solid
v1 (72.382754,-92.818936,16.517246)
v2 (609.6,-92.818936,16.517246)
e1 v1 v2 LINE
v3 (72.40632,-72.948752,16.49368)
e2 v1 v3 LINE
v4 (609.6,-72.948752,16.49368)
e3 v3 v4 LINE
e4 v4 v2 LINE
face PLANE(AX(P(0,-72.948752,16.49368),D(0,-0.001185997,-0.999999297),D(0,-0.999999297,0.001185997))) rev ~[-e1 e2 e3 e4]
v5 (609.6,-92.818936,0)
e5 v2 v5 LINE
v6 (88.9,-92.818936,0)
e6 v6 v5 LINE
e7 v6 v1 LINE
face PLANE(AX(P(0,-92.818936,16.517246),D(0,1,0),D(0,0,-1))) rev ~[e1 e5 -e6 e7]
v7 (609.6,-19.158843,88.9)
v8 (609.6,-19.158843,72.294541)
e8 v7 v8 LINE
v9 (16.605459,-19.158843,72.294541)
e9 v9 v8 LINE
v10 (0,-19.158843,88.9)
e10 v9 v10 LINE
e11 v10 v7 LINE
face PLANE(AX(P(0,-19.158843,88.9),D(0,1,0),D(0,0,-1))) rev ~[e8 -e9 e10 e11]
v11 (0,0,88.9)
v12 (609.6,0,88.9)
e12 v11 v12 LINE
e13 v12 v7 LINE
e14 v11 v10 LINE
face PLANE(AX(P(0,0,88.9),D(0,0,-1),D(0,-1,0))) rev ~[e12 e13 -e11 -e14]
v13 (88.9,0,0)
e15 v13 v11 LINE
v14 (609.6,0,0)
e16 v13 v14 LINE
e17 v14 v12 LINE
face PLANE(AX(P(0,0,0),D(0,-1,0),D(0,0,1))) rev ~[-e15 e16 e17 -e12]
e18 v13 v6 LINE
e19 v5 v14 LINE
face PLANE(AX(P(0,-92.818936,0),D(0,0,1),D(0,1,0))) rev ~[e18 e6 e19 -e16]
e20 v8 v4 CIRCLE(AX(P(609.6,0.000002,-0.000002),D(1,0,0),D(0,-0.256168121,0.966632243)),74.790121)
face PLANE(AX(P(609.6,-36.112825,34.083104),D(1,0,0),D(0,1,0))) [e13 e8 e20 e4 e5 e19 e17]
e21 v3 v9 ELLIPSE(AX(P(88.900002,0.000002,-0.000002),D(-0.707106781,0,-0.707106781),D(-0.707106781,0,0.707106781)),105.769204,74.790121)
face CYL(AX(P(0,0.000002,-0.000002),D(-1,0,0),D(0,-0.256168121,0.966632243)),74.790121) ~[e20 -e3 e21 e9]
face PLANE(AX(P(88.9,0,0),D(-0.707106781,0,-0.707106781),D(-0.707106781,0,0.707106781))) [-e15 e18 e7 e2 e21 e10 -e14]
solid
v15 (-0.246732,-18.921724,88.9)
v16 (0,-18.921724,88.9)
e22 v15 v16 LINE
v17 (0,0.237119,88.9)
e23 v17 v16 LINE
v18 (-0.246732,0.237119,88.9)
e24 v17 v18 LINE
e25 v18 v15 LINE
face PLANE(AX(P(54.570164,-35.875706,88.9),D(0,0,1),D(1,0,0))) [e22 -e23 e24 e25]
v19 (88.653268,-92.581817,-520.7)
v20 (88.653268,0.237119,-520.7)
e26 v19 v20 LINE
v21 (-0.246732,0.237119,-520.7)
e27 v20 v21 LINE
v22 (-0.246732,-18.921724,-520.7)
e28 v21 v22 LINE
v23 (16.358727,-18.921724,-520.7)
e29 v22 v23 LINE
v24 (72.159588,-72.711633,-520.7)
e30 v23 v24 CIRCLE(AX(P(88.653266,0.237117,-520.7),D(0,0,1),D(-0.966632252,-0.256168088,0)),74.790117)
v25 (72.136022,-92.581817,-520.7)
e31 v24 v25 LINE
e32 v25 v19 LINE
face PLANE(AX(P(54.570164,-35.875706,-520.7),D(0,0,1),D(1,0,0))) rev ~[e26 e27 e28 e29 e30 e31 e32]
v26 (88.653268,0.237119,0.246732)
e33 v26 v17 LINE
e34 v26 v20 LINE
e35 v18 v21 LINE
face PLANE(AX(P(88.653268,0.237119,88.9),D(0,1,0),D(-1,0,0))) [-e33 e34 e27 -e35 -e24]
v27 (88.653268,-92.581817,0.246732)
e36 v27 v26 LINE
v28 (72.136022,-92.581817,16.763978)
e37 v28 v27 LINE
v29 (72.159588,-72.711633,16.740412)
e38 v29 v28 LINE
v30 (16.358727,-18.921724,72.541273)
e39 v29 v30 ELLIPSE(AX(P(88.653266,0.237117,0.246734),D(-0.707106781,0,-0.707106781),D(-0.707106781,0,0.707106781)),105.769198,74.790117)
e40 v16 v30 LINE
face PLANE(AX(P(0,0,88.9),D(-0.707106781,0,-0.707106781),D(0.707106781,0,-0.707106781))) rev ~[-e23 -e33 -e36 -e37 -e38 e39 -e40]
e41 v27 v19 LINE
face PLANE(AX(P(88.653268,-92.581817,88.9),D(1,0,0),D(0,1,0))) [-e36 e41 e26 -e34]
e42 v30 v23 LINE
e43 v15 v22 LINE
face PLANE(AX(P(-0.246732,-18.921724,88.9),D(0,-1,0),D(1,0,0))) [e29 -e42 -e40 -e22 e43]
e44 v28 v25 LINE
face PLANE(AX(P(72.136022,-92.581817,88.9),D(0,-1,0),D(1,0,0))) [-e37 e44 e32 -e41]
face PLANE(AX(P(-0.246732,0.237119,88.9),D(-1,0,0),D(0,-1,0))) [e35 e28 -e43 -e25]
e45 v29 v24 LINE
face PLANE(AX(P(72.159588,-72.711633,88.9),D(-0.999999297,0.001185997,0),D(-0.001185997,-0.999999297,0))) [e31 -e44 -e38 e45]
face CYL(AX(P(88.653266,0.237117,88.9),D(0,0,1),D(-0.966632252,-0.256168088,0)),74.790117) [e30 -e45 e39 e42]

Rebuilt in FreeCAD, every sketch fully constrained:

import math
import FreeCAD as App
import Part
import Sketcher
Q = App.Units.Quantity

doc = App.newDocument("Part")
params = doc.addObject("Spreadsheet::Sheet", "Params")
for row, (alias, value) in enumerate([
    ("sketch1_height", "3.5 in"),
    ("pad1_length", "24 in"),
    ("sketch2_width", "3.5 in"),
    ("sketch3_width", "3.5 in"),
    ("pad2_length", "24 in"),
    ("sketch4_width", "3.5 in"),
    ("pocket2_length", "8 in"),
], start=1):
    params.set(f"A{row}", alias)
    params.set(f"B{row}", "=" + value)
    params.setAlias(f"B{row}", alias)

body = doc.addObject("PartDesign::Body", "Body")

sketch1 = body.newObject("Sketcher::SketchObject", "Sketch")
sketch1.AttachmentSupport = (doc.getObject("YZ_Plane"), [""])
sketch1.MapMode = "FlatFace"
sketch1.addGeometry([
    Part.LineSegment(App.Vector(-19, 89, 0), App.Vector(-19, 72, 0)),
    Part.ArcOfCircle(Part.Circle(App.Vector(0, 0, 0), App.Vector(0, 0, 1), 75), math.radians(105), math.radians(167)),
    Part.LineSegment(App.Vector(-73, 16, 0), App.Vector(-93, 17, 0)),
    Part.LineSegment(App.Vector(-93, 17, 0), App.Vector(-93, 0, 0)),
    Part.LineSegment(App.Vector(-93, 0, 0), App.Vector(0, 0, 0)),
    Part.LineSegment(App.Vector(0, 0, 0), App.Vector(0, 89, 0)),
    Part.LineSegment(App.Vector(0, 89, 0), App.Vector(-19, 89, 0)),
], False)
sketch1.addConstraint([
    Sketcher.Constraint("Coincident", 0, 2, 1, 1),
    Sketcher.Constraint("Coincident", 1, 2, 2, 1),
    Sketcher.Constraint("Coincident", 2, 2, 3, 1),
    Sketcher.Constraint("Coincident", 3, 2, 4, 1),
    Sketcher.Constraint("Coincident", 4, 2, 5, 1),
    Sketcher.Constraint("Coincident", 5, 2, 6, 1),
    Sketcher.Constraint("Coincident", 6, 2, 0, 1),
    Sketcher.Constraint("Vertical", 0),
    Sketcher.Constraint("Vertical", 3),
    Sketcher.Constraint("Horizontal", 4),
    Sketcher.Constraint("Vertical", 5),
    Sketcher.Constraint("Horizontal", 6),
    Sketcher.Constraint("Coincident", 1, 3, -1, 1),
    Sketcher.Constraint("Coincident", 4, 2, -1, 1),
    Sketcher.Constraint("DistanceY", 5, 1, 5, 2, Q("3.5 in")),
    Sketcher.Constraint("Radius", 1, Q("74.790121 mm")),
    Sketcher.Constraint("DistanceY", 0, 2, 0, 1, Q("16.605459 mm")),
    Sketcher.Constraint("DistanceX", 4, 1, 4, 2, Q("92.818936 mm")),
    Sketcher.Constraint("DistanceY", 3, 2, 3, 1, Q("16.517246 mm")),
    Sketcher.Constraint("DistanceY", -1, 1, 1, 2, Q("16.49368 mm")),
])
sketch1.setExpression("Constraints[14]", "Params.sketch1_height")
pad1 = body.newObject("PartDesign::Pad", "Pad")
pad1.Profile = sketch1
pad1.setExpression("Length", "Params.pad1_length")

sketch2 = body.newObject("Sketcher::SketchObject", "Sketch001")
sketch2.AttachmentSupport = (doc.getObject("XZ_Plane"), [""])
sketch2.MapMode = "FlatFace"
sketch2.addGeometry([
    Part.LineSegment(App.Vector(89, 0, 0), App.Vector(0, 89, 0)),
    Part.LineSegment(App.Vector(0, 89, 0), App.Vector(0, 0, 0)),
    Part.LineSegment(App.Vector(0, 0, 0), App.Vector(89, 0, 0)),
], False)
sketch2.addConstraint([
    Sketcher.Constraint("Coincident", 0, 2, 1, 1),
    Sketcher.Constraint("Coincident", 1, 2, 2, 1),
    Sketcher.Constraint("Coincident", 2, 2, 0, 1),
    Sketcher.Constraint("Vertical", 1),
    Sketcher.Constraint("Horizontal", 2),
    Sketcher.Constraint("Coincident", 1, 2, -1, 1),
    Sketcher.Constraint("Equal", 2, 1),
    Sketcher.Constraint("DistanceX", 2, 1, 2, 2, Q("3.5 in")),
])
sketch2.setExpression("Constraints[7]", "Params.sketch2_width")
pocket1 = body.newObject("PartDesign::Pocket", "Pocket")
pocket1.Profile = sketch2
pocket1.Type = "ThroughAll"
pocket1.Reversed = True
body2 = doc.addObject("PartDesign::Body", "Body001")

sketch3 = body2.newObject("Sketcher::SketchObject", "Sketch002")
sketch3.AttachmentSupport = (doc.getObject("XY_Plane001"), [""])
sketch3.MapMode = "FlatFace"
sketch3.AttachmentOffset = App.Placement(App.Vector(0, 0, 3.5 * 25.4), App.Rotation())
sketch3.addGeometry([
    Part.LineSegment(App.Vector(0, -19, 0), App.Vector(16, -19, 0)),
    Part.ArcOfCircle(Part.Circle(App.Vector(89, 0, 0), App.Vector(0, 0, 1), 75), math.radians(-165), math.radians(-103)),
    Part.LineSegment(App.Vector(72, -73, 0), App.Vector(72, -93, 0)),
    Part.LineSegment(App.Vector(72, -93, 0), App.Vector(89, -93, 0)),
    Part.LineSegment(App.Vector(89, -93, 0), App.Vector(89, 0, 0)),
    Part.LineSegment(App.Vector(89, 0, 0), App.Vector(0, 0, 0)),
    Part.LineSegment(App.Vector(0, 0, 0), App.Vector(0, -19, 0)),
], False)
sketch3.addConstraint([
    Sketcher.Constraint("Coincident", 0, 2, 1, 1),
    Sketcher.Constraint("Coincident", 1, 2, 2, 1),
    Sketcher.Constraint("Coincident", 2, 2, 3, 1),
    Sketcher.Constraint("Coincident", 3, 2, 4, 1),
    Sketcher.Constraint("Coincident", 4, 2, 5, 1),
    Sketcher.Constraint("Coincident", 5, 2, 6, 1),
    Sketcher.Constraint("Coincident", 6, 2, 0, 1),
    Sketcher.Constraint("Horizontal", 0),
    Sketcher.Constraint("Horizontal", 3),
    Sketcher.Constraint("Vertical", 4),
    Sketcher.Constraint("Horizontal", 5),
    Sketcher.Constraint("Vertical", 6),
    Sketcher.Constraint("Coincident", 4, 2, 1, 3),
    Sketcher.Constraint("DistanceX", 5, 2, 5, 1, Q("3.5 in")),
    Sketcher.Constraint("Radius", 1, Q("74.790117 mm")),
    Sketcher.Constraint("DistanceX", 0, 1, 0, 2, Q("16.605459 mm")),
    Sketcher.Constraint("DistanceX", 3, 1, 3, 2, Q("16.517246 mm")),
    Sketcher.Constraint("DistanceY", 4, 1, 4, 2, Q("92.818936 mm")),
    Sketcher.Constraint("DistanceX", -1, 1, 1, 2, Q("72.159588 mm")),
    Sketcher.Constraint("DistanceX", -1, 1, 2, 2, Q("72.136022 mm")),
    Sketcher.Constraint("DistanceY", -1, 1, 4, 2, Q("0.237119 mm")),
])
sketch3.setExpression("Constraints[13]", "Params.sketch3_width")
pad2 = body2.newObject("PartDesign::Pad", "Pad001")
pad2.Profile = sketch3
pad2.setExpression("Length", "Params.pad2_length")
pad2.Reversed = True

sketch4 = body2.newObject("Sketcher::SketchObject", "Sketch003")
sketch4.AttachmentSupport = (doc.getObject("XZ_Plane001"), [""])
sketch4.MapMode = "FlatFace"
sketch4.addGeometry([
    Part.LineSegment(App.Vector(89, 89, 0), App.Vector(0, 89, 0)),
    Part.LineSegment(App.Vector(0, 89, 0), App.Vector(89, 0, 0)),
    Part.LineSegment(App.Vector(89, 0, 0), App.Vector(89, 89, 0)),
], False)
sketch4.addConstraint([
    Sketcher.Constraint("Coincident", 0, 2, 1, 1),
    Sketcher.Constraint("Coincident", 1, 2, 2, 1),
    Sketcher.Constraint("Coincident", 2, 2, 0, 1),
    Sketcher.Constraint("Horizontal", 0),
    Sketcher.Constraint("Vertical", 2),
    Sketcher.Constraint("PointOnObject", 0, 2, -2),
    Sketcher.Constraint("PointOnObject", 1, 2, -1),
    Sketcher.Constraint("Equal", 0, 2),
    Sketcher.Constraint("DistanceX", 0, 2, 0, 1, Q("3.5 in")),
])
sketch4.setExpression("Constraints[8]", "Params.sketch4_width")
pocket2 = body2.newObject("PartDesign::Pocket", "Pocket001")
pocket2.Profile = sketch4
pocket2.setExpression("Length", "Params.pocket2_length")
pocket2.Midplane = True
body3 = doc.addObject("PartDesign::Body", "Body002")
doc.recompute()

body.Placement = App.Placement(App.Vector(175.26, 0, 0), App.Rotation(App.Vector(0, 0, 1), 0))
boolean = body3.newObject("PartDesign::Boolean", "Boolean")
boolean.Type = "Fuse"
boolean.addObjects([body])
body4 = doc.addObject("PartDesign::Body", "Body003")
doc.recompute()

body3.Placement = App.Placement(App.Vector(-175.26, 0, 0), App.Rotation(App.Vector(0, 0, 1), 0))
boolean2 = body4.newObject("PartDesign::Boolean", "Boolean001")
boolean2.Type = "Fuse"
boolean2.addObjects([body3])

doc.recompute()
